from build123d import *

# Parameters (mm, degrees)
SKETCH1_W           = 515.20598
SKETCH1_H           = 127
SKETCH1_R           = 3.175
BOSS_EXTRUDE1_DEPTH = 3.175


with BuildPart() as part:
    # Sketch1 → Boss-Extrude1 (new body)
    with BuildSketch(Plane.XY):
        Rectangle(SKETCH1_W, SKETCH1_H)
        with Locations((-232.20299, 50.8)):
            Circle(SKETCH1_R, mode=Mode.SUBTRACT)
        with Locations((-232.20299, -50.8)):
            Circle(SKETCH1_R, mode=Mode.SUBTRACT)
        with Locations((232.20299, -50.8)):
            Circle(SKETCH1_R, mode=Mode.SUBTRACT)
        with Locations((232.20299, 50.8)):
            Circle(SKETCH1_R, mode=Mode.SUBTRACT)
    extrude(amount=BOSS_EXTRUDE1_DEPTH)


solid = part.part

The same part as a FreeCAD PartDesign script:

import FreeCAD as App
import Part
import Sketcher

V = App.Vector
Q = App.Units.Quantity


def add_polygon(sketch, points):
    """Adds a closed chain of lines whose ends are joined by coincident constraints."""
    first, n = sketch.GeometryCount, len(points)
    for a, b in zip(points, points[1:] + points[:1]):
        sketch.addGeometry(Part.LineSegment(App.Vector(*a, 0), App.Vector(*b, 0)), False)
    for i in range(n):
        sketch.addConstraint(Sketcher.Constraint("Coincident", first + i, 2, first + (i + 1) % n, 1))

doc = App.newDocument("Part")
body = doc.addObject("PartDesign::Body", "Body")

# Sketch on XY plane
sketch1 = body.newObject("Sketcher::SketchObject", "Sketch")
sketch1.AttachmentSupport = (doc.getObject("XY_Plane"), [""])
sketch1.MapMode = "FlatFace"
add_polygon(sketch1, [(-257.60299, 63.5), (-257.60299, -63.5), (257.60299, -63.5), (257.60299, 63.5)])  # lines 0-3
sketch1.addGeometry(Part.Circle(V(-232.20299, -50.8, 0), V(0, 0, 1), 3.175), False)  # 4
sketch1.addGeometry(Part.Circle(V(232.20299, -50.8, 0), V(0, 0, 1), 3.175), False)  # 5
sketch1.addGeometry(Part.Circle(V(-232.20299, 50.8, 0), V(0, 0, 1), 3.175), False)  # 6
sketch1.addGeometry(Part.Circle(V(232.20299, 50.8, 0), V(0, 0, 1), 3.175), False)  # 7
sketch1.addConstraint(Sketcher.Constraint("Vertical", 0))
sketch1.addConstraint(Sketcher.Constraint("Horizontal", 1))
sketch1.addConstraint(Sketcher.Constraint("Vertical", 2))
sketch1.addConstraint(Sketcher.Constraint("Horizontal", 3))
sketch1.addConstraint(Sketcher.Constraint("Equal", 4, 5))
sketch1.addConstraint(Sketcher.Constraint("Equal", 5, 6))
sketch1.addConstraint(Sketcher.Constraint("Equal", 6, 7))
sketch1.addConstraint(Sketcher.Constraint("Symmetric", 5, 3, 6, 3, -1, 1))
sketch1.addConstraint(Sketcher.Constraint("Symmetric", 4, 3, 7, 3, -1, 1))
sketch1.addConstraint(Sketcher.Constraint("Symmetric", 0, 2, 2, 2, -1, 1))
sketch1.addConstraint(Sketcher.Constraint("Symmetric", 4, 3, 5, 3, -2))
sketch1.addConstraint(Sketcher.Constraint("Diameter", 4, Q("0.25 in")))
sketch1.addConstraint(Sketcher.Constraint("DistanceY", 0, 2, 0, 1, Q("5 in")))
sketch1.addConstraint(Sketcher.Constraint("DistanceY", 4, 3, -1, 1, Q("2 in")))
sketch1.addConstraint(Sketcher.Constraint("DistanceX", 0, 2, 4, 3, Q("1 in")))
sketch1.addConstraint(Sketcher.Constraint("DistanceX", 1, 1, 1, 2, Q("20.2837 in")))
pad1 = body.newObject("PartDesign::Pad", "Pad")
pad1.Profile = sketch1
pad1.Length = Q("0.125 in")

doc.recompute()
